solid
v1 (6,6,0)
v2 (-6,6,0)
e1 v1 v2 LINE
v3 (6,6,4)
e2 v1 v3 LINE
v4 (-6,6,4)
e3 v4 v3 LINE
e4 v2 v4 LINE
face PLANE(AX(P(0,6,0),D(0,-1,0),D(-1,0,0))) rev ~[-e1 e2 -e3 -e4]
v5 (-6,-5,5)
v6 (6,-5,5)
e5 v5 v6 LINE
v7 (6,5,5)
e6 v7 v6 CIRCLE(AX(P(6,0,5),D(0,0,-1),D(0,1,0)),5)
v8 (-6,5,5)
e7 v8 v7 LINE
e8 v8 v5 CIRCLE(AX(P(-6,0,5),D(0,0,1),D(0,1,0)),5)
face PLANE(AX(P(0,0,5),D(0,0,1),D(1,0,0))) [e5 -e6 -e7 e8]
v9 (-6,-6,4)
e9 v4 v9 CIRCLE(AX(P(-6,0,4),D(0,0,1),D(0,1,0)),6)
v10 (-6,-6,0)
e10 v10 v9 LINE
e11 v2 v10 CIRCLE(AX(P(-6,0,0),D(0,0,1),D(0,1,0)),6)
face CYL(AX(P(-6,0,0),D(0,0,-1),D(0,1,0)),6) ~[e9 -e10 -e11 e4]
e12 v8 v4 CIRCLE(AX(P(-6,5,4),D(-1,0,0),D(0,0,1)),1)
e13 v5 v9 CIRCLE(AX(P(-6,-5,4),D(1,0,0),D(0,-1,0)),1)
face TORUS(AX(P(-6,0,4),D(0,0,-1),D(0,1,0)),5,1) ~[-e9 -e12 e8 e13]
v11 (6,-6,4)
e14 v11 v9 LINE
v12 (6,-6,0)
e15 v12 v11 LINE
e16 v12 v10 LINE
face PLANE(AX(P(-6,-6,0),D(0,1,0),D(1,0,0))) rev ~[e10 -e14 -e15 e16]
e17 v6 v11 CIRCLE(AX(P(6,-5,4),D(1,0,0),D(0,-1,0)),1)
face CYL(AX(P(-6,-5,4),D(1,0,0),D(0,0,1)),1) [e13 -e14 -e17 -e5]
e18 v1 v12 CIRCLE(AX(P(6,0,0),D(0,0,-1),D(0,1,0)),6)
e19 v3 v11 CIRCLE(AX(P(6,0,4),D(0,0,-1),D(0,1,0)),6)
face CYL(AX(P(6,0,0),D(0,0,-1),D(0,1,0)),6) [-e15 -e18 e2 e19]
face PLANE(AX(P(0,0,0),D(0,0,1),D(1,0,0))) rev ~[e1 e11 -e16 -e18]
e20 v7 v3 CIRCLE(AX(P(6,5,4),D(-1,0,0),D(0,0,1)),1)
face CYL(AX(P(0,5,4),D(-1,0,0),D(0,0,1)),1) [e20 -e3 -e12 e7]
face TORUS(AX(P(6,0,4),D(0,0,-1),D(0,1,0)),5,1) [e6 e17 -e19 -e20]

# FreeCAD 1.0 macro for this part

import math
import FreeCAD as App
import Part
import Sketcher

V = App.Vector
Q = App.Units.Quantity


def edges_at(feature, points):
    """Names of the edges that pass closest to the given points."""
    edges = feature.Shape.Edges
    near = lambda p: min(range(len(edges)), key=lambda i: edges[i].distToShape(Part.Vertex(*p))[0])
    return sorted({f"Edge{near(p) + 1}" for p in points})

doc = App.newDocument("Part")
params = doc.addObject("Spreadsheet::Sheet", "Params")
for row, (alias, value) in enumerate([
    ("sketch1_radius", "6 mm"),
    ("sketch1_width", "6 mm"),
    ("pad1_length", "5 mm"),
    ("fillet_radius", "1 mm"),
], start=1):
    params.set(f"A{row}", alias)
    params.set(f"B{row}", "=" + value)
    params.setAlias(f"B{row}", alias)

body = doc.addObject("PartDesign::Body", "Body")

# Sketch on XY plane
sketch1 = body.newObject("Sketcher::SketchObject", "Sketch")
sketch1.AttachmentSupport = (doc.getObject("XY_Plane"), [""])
sketch1.MapMode = "FlatFace"
sketch1.addGeometry([
    Part.ArcOfCircle(Part.Circle(V(-6, 0, 0), V(0, 0, 1), 6), math.radians(90), math.radians(270)),
    Part.LineSegment(V(-6, -6, 0), V(0, -6, 0)),
    Part.LineSegment(V(0, -6, 0), V(0, 6, 0)),
    Part.LineSegment(V(0, 6, 0), V(-6, 6, 0)),
], False)
sketch1.addConstraint([
    Sketcher.Constraint("Tangent", 0, 2, 1, 1),
    Sketcher.Constraint("Coincident", 1, 2, 2, 1),
    Sketcher.Constraint("Coincident", 2, 2, 3, 1),
    Sketcher.Constraint("Tangent", 3, 2, 0, 1),
    Sketcher.Constraint("Horizontal", 1),
    Sketcher.Constraint("Vertical", 2),
    Sketcher.Constraint("Horizontal", 3),
    Sketcher.Constraint("Symmetric", 1, 2, 2, 2, -1, 1),
    Sketcher.Constraint("Radius", 0, Q("6 mm")),
    Sketcher.Constraint("DistanceX", 1, 1, 1, 2, Q("6 mm")),
])
sketch1.setExpression("Constraints[8]", "Params.sketch1_radius")
sketch1.setExpression("Constraints[9]", "Params.sketch1_width")
pad1 = body.newObject("PartDesign::Pad", "Pad")
pad1.Profile = sketch1
pad1.setExpression("Length", "Params.pad1_length")
doc.recompute()

fillet = body.newObject("PartDesign::Fillet", "Fillet")
fillet.Base = (pad1, edges_at(pad1, [(-3, -6, 5), (-3, 6, 5), (-12, 0, 5)]))
fillet.setExpression("Radius", "Params.fillet_radius")
doc.recompute()

mirrored = body.newObject("PartDesign::Mirrored", "Mirrored")
mirrored.TransformMode = "Transform body"
mirrored.MirrorPlane = (doc.getObject("YZ_Plane"), [""])
body.Tip = mirrored

doc.recompute()
